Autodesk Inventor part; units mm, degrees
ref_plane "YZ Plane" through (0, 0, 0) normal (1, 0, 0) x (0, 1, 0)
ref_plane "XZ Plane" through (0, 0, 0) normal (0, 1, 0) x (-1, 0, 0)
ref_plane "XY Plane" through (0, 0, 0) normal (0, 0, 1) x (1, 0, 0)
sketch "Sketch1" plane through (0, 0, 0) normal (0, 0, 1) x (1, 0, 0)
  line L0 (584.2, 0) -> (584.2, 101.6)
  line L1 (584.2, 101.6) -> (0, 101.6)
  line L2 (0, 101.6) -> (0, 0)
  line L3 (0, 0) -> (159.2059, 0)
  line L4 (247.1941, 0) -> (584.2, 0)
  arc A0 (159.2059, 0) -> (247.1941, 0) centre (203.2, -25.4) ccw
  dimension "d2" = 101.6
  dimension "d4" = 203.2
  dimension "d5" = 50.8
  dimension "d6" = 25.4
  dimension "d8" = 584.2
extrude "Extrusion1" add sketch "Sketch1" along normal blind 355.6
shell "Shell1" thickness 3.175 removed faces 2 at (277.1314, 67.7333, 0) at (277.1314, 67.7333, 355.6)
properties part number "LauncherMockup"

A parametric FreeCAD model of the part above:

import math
import FreeCAD as App
import Part
import Sketcher
Q = App.Units.Quantity


def faces_at(feature, points):
    """Names of the faces that lie closest to the given points."""
    faces = feature.Shape.Faces
    near = lambda p: min(range(len(faces)), key=lambda i: faces[i].distToShape(Part.Vertex(*p))[0])
    return sorted({f"Face{near(p) + 1}" for p in points})

doc = App.newDocument("Part")
params = doc.addObject("Spreadsheet::Sheet", "Params")
for row, (alias, value) in enumerate([
    ("sketch1_radius", "2 in"),
    ("sketch1_width", "23 in"),
    ("sketch1_height", "4 in"),
    ("pad1_length", "14 in"),
    ("thickness_wall", "0.125 in"),
], start=1):
    params.set(f"A{row}", alias)
    params.set(f"B{row}", "=" + value)
    params.setAlias(f"B{row}", alias)

body = doc.addObject("PartDesign::Body", "Body")

# Sketch on XY plane
sketch1 = doc.addObject("Sketcher::SketchObject", "Sketch")
body.addObject(sketch1)
sketch1.AttachmentSupport = (doc.XY_Plane, [""])
sketch1.MapMode = "FlatFace"
sketch1.addGeometry([
    Part.LineSegment(App.Vector(247, 0, 0), App.Vector(584, 0, 0)),  # 0
    Part.LineSegment(App.Vector(584, 0, 0), App.Vector(584, 102, 0)),  # 1
    Part.LineSegment(App.Vector(584, 102, 0), App.Vector(0, 102, 0)),  # 2
    Part.LineSegment(App.Vector(0, 102, 0), App.Vector(0, 0, 0)),  # 3
    Part.LineSegment(App.Vector(0, 0, 0), App.Vector(159, 0, 0)),  # 4
    Part.ArcOfCircle(Part.Circle(App.Vector(203, -25, 0), App.Vector(0, 0, 1), 51), math.radians(150), math.radians(390)),  # 5
], False)
sketch1.addConstraint([
    Sketcher.Constraint("Coincident", 0, 2, 1, 1),
    Sketcher.Constraint("Coincident", 1, 2, 2, 1),
    Sketcher.Constraint("Coincident", 2, 2, 3, 1),
    Sketcher.Constraint("Coincident", 3, 2, 4, 1),
    Sketcher.Constraint("Coincident", 4, 2, 5, 1),
    Sketcher.Constraint("Coincident", 5, 2, 0, 1),
    Sketcher.Constraint("Horizontal", 0),
    Sketcher.Constraint("Vertical", 1),
    Sketcher.Constraint("Horizontal", 2),
    Sketcher.Constraint("Vertical", 3),
    Sketcher.Constraint("Horizontal", 4),
    Sketcher.Constraint("Coincident", 3, 2, -1, 1),
    Sketcher.Constraint("PointOnObject", 0, 2, -1),
    Sketcher.Constraint("Radius", 5, Q("2 in")),
    Sketcher.Constraint("DistanceX", 2, 2, 2, 1, Q("23 in")),
    Sketcher.Constraint("DistanceY", 1, 1, 1, 2, Q("4 in")),
    Sketcher.Constraint("DistanceX", -1, 1, 5, 3, Q("8 in")),
    Sketcher.Constraint("DistanceY", 5, 3, -1, 1, Q("1 in")),
])
sketch1.setExpression("Constraints[13]", "Params.sketch1_radius")
sketch1.setExpression("Constraints[14]", "Params.sketch1_width")
sketch1.setExpression("Constraints[15]", "Params.sketch1_height")
pad1 = doc.addObject("PartDesign::Pad", "Pad")
body.addObject(pad1)
pad1.Profile = sketch1
pad1.setExpression("Length", "Params.pad1_length")
doc.recompute()

thickness = doc.addObject("PartDesign::Thickness", "Thickness")
body.addObject(thickness)
thickness.Base = (pad1, faces_at(pad1, [(277.131, 67.733, 0), (277.131, 67.733, 355.6)]))
thickness.setExpression("Value", "Params.thickness_wall")
thickness.Reversed = True
thickness.Join = "Intersection"

doc.recompute()
